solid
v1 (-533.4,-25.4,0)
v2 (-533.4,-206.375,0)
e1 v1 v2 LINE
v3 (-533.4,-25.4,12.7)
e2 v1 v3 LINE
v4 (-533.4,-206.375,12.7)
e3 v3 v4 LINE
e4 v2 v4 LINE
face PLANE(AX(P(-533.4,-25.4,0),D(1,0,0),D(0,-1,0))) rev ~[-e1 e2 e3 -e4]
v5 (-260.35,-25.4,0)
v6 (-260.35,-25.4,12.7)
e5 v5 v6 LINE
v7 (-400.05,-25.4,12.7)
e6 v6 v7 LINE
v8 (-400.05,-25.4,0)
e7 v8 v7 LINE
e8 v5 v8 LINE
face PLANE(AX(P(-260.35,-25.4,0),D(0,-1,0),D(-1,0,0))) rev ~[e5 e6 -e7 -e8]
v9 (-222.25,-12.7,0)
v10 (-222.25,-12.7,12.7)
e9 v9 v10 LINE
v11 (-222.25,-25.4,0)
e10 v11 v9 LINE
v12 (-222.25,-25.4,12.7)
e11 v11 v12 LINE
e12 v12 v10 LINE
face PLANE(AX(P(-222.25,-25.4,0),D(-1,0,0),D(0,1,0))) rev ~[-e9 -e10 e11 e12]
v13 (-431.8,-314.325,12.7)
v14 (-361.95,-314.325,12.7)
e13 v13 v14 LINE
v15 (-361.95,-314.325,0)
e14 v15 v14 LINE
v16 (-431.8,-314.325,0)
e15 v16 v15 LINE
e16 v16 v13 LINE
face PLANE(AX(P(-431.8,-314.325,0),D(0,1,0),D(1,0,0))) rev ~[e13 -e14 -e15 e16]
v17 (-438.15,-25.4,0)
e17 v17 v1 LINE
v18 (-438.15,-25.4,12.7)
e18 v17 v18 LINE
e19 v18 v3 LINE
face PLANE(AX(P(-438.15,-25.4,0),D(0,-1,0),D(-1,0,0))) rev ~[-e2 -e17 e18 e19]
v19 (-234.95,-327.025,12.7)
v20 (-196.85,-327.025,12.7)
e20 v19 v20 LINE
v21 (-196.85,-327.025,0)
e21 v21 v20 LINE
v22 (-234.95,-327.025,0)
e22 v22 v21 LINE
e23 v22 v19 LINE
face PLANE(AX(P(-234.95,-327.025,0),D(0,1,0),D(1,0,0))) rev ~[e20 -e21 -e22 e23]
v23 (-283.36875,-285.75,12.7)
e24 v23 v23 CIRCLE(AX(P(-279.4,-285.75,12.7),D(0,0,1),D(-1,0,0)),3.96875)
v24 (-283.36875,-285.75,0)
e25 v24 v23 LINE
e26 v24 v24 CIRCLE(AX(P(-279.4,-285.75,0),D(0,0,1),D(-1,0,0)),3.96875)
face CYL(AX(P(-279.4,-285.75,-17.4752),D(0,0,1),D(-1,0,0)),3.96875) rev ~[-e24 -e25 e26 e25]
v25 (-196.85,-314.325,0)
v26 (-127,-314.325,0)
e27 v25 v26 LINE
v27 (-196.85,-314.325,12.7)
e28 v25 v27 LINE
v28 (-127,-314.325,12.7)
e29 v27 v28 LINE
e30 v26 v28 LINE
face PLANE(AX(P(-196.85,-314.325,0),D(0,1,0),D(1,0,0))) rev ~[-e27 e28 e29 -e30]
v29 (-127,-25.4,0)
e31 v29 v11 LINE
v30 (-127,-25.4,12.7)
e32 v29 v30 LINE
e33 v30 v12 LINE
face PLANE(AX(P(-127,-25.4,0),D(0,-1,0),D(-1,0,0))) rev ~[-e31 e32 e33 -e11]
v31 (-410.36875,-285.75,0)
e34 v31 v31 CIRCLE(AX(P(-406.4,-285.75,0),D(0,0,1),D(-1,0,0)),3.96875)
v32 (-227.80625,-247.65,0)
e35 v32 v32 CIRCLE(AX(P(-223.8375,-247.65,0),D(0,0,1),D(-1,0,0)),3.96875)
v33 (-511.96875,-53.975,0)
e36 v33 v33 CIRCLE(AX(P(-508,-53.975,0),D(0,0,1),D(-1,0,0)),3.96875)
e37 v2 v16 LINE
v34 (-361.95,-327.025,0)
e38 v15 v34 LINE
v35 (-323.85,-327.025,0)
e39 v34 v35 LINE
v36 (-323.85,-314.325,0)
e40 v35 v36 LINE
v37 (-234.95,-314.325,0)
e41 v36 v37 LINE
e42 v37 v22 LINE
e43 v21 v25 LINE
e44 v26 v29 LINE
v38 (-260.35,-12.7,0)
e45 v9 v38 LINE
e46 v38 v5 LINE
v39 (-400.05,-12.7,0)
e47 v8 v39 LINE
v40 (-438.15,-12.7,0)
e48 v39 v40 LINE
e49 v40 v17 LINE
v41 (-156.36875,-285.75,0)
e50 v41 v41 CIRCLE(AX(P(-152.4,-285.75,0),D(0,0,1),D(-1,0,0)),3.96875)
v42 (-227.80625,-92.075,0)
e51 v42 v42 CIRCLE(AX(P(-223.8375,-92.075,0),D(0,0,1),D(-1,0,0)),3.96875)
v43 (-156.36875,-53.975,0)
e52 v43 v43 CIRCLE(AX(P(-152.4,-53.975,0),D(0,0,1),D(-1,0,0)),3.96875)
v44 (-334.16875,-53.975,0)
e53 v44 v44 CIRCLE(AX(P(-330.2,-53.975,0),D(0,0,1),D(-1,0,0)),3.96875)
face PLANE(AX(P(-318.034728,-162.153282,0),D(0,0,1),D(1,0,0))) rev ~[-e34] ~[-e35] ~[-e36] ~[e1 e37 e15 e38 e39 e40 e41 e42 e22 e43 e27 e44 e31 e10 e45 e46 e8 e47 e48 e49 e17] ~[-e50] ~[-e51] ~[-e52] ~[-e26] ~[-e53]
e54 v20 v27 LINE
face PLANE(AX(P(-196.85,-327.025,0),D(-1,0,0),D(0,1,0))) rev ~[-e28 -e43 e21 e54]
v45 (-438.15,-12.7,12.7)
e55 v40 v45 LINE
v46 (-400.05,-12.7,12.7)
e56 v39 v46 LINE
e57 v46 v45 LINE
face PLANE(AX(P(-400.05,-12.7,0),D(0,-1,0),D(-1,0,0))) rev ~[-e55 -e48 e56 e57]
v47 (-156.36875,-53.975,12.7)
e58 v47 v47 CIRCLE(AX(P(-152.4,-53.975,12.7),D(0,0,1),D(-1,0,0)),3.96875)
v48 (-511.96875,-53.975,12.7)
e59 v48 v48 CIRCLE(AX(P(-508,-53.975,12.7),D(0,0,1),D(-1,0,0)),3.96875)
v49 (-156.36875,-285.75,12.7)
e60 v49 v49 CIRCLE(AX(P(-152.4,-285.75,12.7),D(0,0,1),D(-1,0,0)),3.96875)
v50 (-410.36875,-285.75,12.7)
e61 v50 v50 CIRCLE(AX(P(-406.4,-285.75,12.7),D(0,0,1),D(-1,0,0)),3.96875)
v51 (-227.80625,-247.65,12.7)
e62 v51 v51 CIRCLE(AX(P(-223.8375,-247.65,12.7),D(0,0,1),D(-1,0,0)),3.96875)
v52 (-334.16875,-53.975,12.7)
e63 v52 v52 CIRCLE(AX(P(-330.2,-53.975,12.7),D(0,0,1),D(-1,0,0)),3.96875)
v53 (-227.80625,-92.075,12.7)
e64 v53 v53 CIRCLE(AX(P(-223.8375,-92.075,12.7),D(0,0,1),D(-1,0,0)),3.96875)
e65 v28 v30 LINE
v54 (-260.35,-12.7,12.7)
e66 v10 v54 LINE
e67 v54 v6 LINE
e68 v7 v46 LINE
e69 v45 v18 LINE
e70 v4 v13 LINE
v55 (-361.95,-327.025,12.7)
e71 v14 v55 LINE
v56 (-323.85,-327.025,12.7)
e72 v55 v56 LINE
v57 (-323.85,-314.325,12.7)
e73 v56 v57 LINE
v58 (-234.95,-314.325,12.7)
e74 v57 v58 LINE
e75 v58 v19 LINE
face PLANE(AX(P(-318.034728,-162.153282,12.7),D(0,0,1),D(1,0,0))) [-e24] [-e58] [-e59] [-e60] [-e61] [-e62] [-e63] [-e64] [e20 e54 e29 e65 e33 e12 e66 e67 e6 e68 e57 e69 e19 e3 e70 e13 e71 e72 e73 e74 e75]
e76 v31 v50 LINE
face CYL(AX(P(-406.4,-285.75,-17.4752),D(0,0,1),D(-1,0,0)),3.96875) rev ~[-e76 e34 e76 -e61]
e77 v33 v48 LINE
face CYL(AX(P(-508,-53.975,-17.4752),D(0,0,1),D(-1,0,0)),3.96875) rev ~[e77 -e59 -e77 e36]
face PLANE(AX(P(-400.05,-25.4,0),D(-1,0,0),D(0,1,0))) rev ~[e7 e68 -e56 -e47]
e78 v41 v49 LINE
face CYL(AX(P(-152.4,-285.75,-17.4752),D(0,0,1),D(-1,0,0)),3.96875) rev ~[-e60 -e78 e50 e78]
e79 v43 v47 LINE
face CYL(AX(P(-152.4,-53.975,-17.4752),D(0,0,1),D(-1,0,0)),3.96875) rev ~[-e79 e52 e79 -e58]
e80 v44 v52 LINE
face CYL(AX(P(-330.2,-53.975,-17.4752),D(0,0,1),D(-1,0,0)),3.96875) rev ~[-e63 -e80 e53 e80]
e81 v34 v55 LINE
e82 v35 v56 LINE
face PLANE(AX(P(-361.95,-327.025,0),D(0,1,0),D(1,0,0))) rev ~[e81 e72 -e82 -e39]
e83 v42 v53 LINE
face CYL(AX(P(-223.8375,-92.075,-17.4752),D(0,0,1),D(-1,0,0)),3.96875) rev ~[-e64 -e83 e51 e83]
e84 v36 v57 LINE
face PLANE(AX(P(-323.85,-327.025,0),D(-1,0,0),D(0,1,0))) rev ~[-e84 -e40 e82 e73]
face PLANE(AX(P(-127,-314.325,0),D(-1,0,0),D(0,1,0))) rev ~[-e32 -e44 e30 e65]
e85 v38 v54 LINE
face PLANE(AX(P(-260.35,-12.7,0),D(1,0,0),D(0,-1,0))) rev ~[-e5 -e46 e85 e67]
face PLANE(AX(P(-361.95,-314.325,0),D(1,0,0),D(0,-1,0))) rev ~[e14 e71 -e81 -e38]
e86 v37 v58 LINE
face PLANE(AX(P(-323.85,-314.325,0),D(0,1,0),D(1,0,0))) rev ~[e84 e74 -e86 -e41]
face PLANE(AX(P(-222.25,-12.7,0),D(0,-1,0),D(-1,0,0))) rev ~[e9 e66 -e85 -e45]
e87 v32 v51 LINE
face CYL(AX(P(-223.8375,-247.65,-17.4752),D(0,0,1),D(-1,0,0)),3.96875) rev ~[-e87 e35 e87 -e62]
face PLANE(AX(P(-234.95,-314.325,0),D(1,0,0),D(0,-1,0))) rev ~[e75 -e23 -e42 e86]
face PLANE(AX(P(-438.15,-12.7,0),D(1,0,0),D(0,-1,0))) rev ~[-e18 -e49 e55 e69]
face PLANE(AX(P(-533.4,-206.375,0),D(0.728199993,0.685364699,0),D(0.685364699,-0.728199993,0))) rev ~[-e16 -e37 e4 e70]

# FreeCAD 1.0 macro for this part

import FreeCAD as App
import Part
import Sketcher

V = App.Vector
Q = App.Units.Quantity


def add_polygon(sketch, points):
    """Adds a closed chain of lines whose ends are joined by coincident constraints."""
    first, n = sketch.GeometryCount, len(points)
    for a, b in zip(points, points[1:] + points[:1]):
        sketch.addGeometry(Part.LineSegment(App.Vector(*a, 0), App.Vector(*b, 0)), False)
    for i in range(n):
        sketch.addConstraint(Sketcher.Constraint("Coincident", first + i, 2, first + (i + 1) % n, 1))

doc = App.newDocument("Part")
body = doc.addObject("PartDesign::Body", "Body")

# Sketch on XY plane
sketch1 = body.newObject("Sketcher::SketchObject", "Sketch")
sketch1.AttachmentSupport = (doc.getObject("XY_Plane"), [""])
sketch1.MapMode = "FlatFace"
add_polygon(sketch1, [(-127, -314), (-127, -25), (-222, -25), (-222, -13), (-260, -13), (-260, -25), (-400, -25), (-400, -13), (-438, -13), (-438, -25), (-533, -25), (-533, -206), (-432, -314), (-362, -314), (-362, -327), (-324, -327), (-324, -314), (-235, -314), (-235, -327), (-197, -327), (-197, -314)])  # lines 0-20
sketch1.addConstraint([
    Sketcher.Constraint("Vertical", 0),
    Sketcher.Constraint("Horizontal", 1),
    Sketcher.Constraint("Vertical", 2),
    Sketcher.Constraint("Horizontal", 3),
    Sketcher.Constraint("Vertical", 4),
    Sketcher.Constraint("Horizontal", 5),
    Sketcher.Constraint("Vertical", 6),
    Sketcher.Constraint("Horizontal", 7),
    Sketcher.Constraint("Vertical", 8),
    Sketcher.Constraint("Horizontal", 9),
    Sketcher.Constraint("Vertical", 10),
    Sketcher.Constraint("Horizontal", 12),
    Sketcher.Constraint("Vertical", 13),
    Sketcher.Constraint("Horizontal", 14),
    Sketcher.Constraint("Vertical", 15),
    Sketcher.Constraint("Horizontal", 16),
    Sketcher.Constraint("Vertical", 17),
    Sketcher.Constraint("Horizontal", 18),
    Sketcher.Constraint("Vertical", 19),
    Sketcher.Constraint("Horizontal", 20),
    Sketcher.Constraint("Horizontal", 1, 2, 4, 2),
    Sketcher.Constraint("Horizontal", 3, 2, 6, 2),
    Sketcher.Constraint("Horizontal", 5, 2, 8, 2),
    Sketcher.Constraint("Horizontal", 12, 2, 15, 2),
    Sketcher.Constraint("Horizontal", 14, 2, 17, 2),
    Sketcher.Constraint("Horizontal", 16, 2, 19, 2),
    Sketcher.Constraint("Equal", 3, 7),
    Sketcher.Constraint("Equal", 1, 9),
    Sketcher.Constraint("Equal", 7, 14),
    Sketcher.Constraint("Equal", 14, 18),
    Sketcher.Constraint("Equal", 12, 20),
    Sketcher.Constraint("Equal", 8, 13),
    Sketcher.Constraint("DistanceX", 3, 2, 3, 1, Q("1.5 in")),
    Sketcher.Constraint("DistanceX", 5, 2, 5, 1, Q("5.5 in")),
    Sketcher.Constraint("DistanceX", 16, 1, 16, 2, Q("3.5 in")),
    Sketcher.Constraint("DistanceY", 2, 1, 2, 2, Q("0.5 in")),
    Sketcher.Constraint("DistanceX", 0, 2, -1, 1, Q("5 in")),
    Sketcher.Constraint("DistanceY", 0, 2, -1, 1, Q("1 in")),
    Sketcher.Constraint("DistanceX", 9, 2, -1, 1, Q("21 in")),
    Sketcher.Constraint("DistanceX", 11, 2, -1, 1, Q("17 in")),
    Sketcher.Constraint("DistanceY", 0, 1, 0, 2, Q("11.375 in")),
    Sketcher.Constraint("DistanceY", 10, 2, 10, 1, Q("7.125 in")),
])
pad1 = body.newObject("PartDesign::Pad", "Pad")
pad1.Profile = sketch1
pad1.Length = Q("0.5 in")

# Sketch on XY plane
sketch2 = body.newObject("Sketcher::SketchObject", "Sketch001")
sketch2.AttachmentSupport = (doc.getObject("XY_Plane"), [""])
sketch2.MapMode = "FlatFace"
sketch2.addGeometry([
    Part.Circle(V(-406.4, -285.8, 0), V(0, 0, 1), 4),  # 0
    Part.Circle(V(-223.8, -247.7, 0), V(0, 0, 1), 4),  # 1
    Part.Circle(V(-152.4, -285.8, 0), V(0, 0, 1), 4),  # 2
    Part.Circle(V(-279.4, -285.8, 0), V(0, 0, 1), 4),  # 3
    Part.Circle(V(-223.8, -92.1, 0), V(0, 0, 1), 4),  # 4
    Part.Circle(V(-152.4, -54, 0), V(0, 0, 1), 4),  # 5
    Part.Circle(V(-330.2, -54, 0), V(0, 0, 1), 4),  # 6
    Part.Circle(V(-508, -54, 0), V(0, 0, 1), 4),  # 7
], False)
sketch2.addConstraint([
    Sketcher.Constraint("Equal", 0, 1),
    Sketcher.Constraint("Equal", 1, 2),
    Sketcher.Constraint("Equal", 2, 3),
    Sketcher.Constraint("Equal", 3, 4),
    Sketcher.Constraint("Equal", 4, 5),
    Sketcher.Constraint("Equal", 5, 6),
    Sketcher.Constraint("Equal", 6, 7),
    Sketcher.Constraint("Horizontal", 0, 3, 2, 3),
    Sketcher.Constraint("Horizontal", 2, 3, 3, 3),
    Sketcher.Constraint("Horizontal", 5, 3, 6, 3),
    Sketcher.Constraint("Horizontal", 6, 3, 7, 3),
    Sketcher.Constraint("Vertical", 1, 3, 4, 3),
    Sketcher.Constraint("Vertical", 2, 3, 5, 3),
    Sketcher.Constraint("Diameter", 0, Q("0.3125 in")),
    Sketcher.Constraint("DistanceX", 0, 3, -1, 1, Q("16 in")),
    Sketcher.Constraint("DistanceX", 2, 3, -1, 1, Q("6 in")),
    Sketcher.Constraint("DistanceX", 3, 3, -1, 1, Q("11 in")),
    Sketcher.Constraint("DistanceX", 6, 3, -1, 1, Q("13 in")),
    Sketcher.Constraint("DistanceX", 7, 3, -1, 1, Q("20 in")),
    Sketcher.Constraint("DistanceY", 0, 3, 1, 3, Q("1.5 in")),
    Sketcher.Constraint("DistanceY", 4, 3, 5, 3, Q("1.5 in")),
    Sketcher.Constraint("DistanceY", 0, 3, -1, 1, Q("11.25 in")),
    Sketcher.Constraint("DistanceX", 1, 3, -1, 1, Q("8.8125 in")),
    Sketcher.Constraint("DistanceY", 4, 3, -1, 1, Q("3.625 in")),
])
doc.recompute()
hole = body.newObject("PartDesign::Hole", "Hole")
hole.Profile = sketch2
hole.ThreadType = "None"
hole.Diameter = Q("0.3125 in")
hole.DepthType = "Dimension"
hole.Depth = Q("0.688 in")
hole.DrillPoint = "Angled"
hole.DrillPointAngle = 118
hole.Reversed = True

doc.recompute()
